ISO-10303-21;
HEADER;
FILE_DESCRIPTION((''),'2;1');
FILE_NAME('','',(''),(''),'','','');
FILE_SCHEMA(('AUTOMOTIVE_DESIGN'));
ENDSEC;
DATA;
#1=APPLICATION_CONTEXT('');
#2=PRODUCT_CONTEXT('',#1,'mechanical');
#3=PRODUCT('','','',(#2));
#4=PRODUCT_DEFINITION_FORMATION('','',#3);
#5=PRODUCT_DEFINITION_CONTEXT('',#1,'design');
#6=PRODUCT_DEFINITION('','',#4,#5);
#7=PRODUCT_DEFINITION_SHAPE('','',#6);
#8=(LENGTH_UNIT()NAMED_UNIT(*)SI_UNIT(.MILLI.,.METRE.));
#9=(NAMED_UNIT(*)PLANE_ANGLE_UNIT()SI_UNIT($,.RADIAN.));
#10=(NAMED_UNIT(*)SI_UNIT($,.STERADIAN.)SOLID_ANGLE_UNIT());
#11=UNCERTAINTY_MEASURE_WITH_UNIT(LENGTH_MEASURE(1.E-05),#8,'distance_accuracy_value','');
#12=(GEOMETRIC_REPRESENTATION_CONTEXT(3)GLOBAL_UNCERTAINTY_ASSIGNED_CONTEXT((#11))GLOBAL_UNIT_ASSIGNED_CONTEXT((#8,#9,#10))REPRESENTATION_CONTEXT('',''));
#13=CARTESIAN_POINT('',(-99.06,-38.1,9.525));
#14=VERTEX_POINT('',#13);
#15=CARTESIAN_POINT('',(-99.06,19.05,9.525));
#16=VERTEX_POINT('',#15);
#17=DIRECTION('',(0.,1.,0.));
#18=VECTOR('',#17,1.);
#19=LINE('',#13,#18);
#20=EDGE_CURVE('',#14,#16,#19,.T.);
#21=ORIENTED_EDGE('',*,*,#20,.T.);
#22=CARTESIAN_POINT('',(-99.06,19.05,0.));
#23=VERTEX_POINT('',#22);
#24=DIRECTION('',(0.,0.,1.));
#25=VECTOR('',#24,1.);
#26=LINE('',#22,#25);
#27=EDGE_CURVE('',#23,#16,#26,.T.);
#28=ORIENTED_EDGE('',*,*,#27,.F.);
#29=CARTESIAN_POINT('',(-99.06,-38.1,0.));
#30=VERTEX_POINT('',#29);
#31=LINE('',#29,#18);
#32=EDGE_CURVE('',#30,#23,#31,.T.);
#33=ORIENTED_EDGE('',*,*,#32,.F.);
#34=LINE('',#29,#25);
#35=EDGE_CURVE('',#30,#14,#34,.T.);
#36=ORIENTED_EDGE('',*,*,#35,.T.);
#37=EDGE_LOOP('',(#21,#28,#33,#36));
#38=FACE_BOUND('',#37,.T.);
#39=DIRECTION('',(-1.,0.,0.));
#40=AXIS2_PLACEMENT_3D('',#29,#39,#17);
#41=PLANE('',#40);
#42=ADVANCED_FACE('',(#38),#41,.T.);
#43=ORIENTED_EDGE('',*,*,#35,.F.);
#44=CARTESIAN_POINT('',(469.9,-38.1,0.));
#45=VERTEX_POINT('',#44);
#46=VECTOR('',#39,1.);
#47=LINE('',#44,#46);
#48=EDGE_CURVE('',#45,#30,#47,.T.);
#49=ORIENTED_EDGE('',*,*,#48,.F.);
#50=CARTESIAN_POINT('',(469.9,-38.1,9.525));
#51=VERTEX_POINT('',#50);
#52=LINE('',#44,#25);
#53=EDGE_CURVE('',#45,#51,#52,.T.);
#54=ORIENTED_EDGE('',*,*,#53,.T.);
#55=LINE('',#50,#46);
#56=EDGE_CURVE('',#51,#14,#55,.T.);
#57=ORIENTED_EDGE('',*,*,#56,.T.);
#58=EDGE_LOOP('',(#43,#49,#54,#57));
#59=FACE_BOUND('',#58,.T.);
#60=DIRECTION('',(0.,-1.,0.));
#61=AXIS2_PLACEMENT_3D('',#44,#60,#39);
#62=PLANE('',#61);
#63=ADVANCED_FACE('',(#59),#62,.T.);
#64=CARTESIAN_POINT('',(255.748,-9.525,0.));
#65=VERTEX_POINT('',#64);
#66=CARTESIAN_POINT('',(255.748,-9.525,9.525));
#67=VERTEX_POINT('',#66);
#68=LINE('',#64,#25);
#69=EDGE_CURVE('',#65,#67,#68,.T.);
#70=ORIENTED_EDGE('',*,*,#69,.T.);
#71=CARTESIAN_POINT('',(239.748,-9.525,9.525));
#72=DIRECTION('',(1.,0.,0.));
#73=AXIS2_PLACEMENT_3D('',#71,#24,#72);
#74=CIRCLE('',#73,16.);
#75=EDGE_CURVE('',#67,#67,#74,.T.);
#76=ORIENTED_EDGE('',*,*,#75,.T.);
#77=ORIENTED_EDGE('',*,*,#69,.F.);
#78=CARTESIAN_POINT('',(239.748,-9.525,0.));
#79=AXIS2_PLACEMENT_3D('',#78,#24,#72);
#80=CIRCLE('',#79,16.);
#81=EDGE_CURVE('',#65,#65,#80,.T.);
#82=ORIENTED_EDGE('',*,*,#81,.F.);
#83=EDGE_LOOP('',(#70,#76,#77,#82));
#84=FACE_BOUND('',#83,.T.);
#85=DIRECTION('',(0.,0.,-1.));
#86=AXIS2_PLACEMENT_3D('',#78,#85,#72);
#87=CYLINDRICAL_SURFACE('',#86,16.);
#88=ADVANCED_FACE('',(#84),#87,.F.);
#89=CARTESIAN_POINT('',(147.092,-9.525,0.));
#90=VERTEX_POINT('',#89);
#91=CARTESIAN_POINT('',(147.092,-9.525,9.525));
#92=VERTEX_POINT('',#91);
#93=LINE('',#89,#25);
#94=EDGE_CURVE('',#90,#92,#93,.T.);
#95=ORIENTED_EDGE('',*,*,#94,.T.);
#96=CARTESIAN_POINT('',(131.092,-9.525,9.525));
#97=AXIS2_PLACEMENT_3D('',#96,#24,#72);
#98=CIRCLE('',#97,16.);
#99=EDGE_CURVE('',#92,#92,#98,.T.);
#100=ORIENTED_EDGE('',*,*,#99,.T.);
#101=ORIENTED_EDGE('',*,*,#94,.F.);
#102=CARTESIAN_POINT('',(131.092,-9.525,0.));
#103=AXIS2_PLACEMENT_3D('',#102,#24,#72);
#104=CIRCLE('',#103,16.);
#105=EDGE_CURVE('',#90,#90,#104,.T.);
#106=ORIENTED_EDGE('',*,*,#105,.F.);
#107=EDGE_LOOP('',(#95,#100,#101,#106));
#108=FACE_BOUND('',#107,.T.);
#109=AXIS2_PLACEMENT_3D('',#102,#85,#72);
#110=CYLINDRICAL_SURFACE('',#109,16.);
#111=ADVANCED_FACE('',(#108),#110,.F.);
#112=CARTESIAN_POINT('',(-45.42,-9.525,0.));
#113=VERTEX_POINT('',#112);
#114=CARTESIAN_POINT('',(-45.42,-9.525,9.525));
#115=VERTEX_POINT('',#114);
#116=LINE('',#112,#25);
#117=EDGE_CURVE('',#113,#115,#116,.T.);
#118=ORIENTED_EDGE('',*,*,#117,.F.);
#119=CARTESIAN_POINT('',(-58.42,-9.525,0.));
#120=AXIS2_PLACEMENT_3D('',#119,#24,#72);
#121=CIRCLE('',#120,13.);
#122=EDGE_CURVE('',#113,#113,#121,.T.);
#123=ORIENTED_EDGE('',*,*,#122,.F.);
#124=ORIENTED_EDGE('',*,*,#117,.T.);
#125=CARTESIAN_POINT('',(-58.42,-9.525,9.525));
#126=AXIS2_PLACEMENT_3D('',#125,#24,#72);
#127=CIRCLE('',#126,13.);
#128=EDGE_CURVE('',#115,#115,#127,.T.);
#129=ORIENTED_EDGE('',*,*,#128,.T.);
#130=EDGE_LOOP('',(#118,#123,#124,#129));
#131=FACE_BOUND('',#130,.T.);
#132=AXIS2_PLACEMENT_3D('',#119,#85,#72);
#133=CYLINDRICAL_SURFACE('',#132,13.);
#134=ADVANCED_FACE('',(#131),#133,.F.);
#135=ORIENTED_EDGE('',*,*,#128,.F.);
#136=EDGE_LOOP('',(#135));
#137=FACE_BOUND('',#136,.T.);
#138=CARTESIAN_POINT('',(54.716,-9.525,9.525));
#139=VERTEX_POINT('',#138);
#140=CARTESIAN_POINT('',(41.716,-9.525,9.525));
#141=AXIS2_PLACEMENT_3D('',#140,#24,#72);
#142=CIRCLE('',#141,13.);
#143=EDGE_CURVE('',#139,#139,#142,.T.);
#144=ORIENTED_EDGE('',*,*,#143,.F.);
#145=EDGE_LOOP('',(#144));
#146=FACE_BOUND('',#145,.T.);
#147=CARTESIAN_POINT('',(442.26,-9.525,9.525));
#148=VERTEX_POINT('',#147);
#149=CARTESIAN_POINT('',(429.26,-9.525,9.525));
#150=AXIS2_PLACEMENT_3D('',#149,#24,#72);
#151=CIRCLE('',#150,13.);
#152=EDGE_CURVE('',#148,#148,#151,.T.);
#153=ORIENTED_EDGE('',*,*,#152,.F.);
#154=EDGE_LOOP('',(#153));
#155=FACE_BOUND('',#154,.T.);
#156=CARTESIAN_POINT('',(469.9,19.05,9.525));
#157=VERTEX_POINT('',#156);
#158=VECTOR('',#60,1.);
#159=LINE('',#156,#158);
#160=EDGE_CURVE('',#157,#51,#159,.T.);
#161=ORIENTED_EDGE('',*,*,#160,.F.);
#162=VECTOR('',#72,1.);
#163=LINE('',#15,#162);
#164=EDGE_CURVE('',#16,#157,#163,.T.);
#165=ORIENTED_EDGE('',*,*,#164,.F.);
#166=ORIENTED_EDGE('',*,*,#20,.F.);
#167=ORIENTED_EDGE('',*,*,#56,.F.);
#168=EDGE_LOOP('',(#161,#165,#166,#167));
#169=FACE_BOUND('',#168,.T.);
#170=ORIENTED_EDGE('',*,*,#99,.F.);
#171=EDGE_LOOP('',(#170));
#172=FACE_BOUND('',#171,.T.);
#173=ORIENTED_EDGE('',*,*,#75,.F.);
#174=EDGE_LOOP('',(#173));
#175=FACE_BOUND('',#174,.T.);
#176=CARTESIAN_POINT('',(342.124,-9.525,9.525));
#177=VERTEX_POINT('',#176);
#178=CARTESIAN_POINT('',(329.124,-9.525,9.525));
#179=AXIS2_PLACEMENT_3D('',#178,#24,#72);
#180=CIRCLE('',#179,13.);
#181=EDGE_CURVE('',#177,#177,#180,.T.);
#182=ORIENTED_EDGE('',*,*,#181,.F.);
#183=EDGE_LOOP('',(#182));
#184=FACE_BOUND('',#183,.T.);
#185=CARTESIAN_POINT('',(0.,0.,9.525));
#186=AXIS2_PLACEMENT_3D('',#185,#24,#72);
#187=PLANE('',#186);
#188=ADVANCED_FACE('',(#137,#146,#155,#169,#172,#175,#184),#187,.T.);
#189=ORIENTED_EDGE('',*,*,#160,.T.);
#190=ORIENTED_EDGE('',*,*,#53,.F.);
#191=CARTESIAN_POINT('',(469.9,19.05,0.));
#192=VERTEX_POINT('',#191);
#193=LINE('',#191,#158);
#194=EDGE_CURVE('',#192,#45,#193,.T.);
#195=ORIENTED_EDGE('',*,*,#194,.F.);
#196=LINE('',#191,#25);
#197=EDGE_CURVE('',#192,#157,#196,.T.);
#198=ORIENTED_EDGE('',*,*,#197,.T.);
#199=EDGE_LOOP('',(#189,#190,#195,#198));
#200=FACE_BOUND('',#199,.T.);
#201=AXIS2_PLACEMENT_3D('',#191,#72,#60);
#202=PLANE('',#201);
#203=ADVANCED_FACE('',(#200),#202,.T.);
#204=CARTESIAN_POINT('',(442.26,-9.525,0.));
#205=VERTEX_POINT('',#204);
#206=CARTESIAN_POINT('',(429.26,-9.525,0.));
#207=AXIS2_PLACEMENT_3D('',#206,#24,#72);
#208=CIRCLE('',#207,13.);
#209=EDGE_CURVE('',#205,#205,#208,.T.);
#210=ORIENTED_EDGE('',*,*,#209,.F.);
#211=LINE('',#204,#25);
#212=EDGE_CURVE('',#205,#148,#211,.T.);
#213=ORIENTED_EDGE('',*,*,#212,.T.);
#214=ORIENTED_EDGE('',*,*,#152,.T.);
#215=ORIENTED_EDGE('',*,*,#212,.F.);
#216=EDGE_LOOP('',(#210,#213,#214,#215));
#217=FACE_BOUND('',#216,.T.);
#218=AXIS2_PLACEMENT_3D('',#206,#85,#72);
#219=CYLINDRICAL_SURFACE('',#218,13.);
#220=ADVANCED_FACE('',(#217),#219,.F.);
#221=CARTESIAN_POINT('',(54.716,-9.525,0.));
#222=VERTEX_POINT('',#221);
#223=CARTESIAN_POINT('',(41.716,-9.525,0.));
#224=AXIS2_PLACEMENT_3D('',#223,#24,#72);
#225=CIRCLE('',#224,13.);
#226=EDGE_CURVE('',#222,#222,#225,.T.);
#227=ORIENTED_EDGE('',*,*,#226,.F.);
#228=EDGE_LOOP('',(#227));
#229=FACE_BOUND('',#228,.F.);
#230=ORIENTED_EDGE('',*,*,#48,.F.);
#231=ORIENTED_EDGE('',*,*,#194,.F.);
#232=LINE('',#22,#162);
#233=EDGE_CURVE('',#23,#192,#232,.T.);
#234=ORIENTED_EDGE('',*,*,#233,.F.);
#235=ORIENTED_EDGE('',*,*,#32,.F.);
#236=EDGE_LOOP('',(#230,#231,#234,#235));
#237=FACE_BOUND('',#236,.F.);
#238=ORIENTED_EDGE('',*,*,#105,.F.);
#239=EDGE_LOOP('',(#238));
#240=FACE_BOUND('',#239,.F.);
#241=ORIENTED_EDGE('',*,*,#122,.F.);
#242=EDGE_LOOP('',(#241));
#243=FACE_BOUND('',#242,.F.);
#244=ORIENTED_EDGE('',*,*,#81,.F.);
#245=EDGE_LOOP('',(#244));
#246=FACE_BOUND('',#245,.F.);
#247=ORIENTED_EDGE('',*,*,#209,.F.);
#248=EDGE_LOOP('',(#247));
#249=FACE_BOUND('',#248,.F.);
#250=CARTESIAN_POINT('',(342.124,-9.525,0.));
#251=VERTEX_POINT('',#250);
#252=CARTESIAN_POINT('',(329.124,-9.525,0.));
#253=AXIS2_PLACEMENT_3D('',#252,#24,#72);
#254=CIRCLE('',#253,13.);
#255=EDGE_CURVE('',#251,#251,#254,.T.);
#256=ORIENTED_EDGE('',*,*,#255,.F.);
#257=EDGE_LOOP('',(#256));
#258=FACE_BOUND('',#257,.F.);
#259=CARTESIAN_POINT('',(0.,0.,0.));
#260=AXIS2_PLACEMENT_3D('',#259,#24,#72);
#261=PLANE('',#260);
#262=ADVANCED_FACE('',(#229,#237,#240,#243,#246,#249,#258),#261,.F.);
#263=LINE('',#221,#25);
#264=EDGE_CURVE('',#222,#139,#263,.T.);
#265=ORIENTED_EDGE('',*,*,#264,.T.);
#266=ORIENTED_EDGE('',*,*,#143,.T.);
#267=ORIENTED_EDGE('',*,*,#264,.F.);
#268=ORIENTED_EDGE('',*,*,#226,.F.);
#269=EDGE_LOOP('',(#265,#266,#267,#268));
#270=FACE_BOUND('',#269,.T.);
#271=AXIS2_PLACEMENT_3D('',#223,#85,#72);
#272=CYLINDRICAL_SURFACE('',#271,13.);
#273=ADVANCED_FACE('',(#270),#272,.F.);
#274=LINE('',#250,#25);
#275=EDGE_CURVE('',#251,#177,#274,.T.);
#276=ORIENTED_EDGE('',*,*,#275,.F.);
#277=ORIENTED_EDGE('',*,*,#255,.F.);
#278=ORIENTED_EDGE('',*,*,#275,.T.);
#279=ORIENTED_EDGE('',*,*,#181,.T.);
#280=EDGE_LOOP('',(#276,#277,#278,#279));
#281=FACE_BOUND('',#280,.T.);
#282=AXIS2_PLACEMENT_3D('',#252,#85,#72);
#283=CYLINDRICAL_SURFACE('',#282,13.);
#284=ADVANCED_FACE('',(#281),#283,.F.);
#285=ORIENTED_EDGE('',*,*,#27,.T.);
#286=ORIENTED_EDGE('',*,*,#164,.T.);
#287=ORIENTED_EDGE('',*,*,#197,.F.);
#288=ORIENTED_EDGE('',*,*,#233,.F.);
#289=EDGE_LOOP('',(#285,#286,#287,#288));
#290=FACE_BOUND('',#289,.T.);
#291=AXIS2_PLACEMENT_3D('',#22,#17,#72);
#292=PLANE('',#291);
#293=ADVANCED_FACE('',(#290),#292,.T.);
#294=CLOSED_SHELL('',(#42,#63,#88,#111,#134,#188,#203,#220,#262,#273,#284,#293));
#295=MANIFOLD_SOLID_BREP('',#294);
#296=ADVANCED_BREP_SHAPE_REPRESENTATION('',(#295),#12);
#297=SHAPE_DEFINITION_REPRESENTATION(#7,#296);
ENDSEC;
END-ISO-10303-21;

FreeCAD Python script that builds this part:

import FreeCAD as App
import Part
import Sketcher
Q = App.Units.Quantity


def add_polygon(sketch, points):
    """Adds a closed chain of lines whose ends are joined by coincident constraints."""
    first, n = sketch.GeometryCount, len(points)
    for a, b in zip(points, points[1:] + points[:1]):
        sketch.addGeometry(Part.LineSegment(App.Vector(*a, 0), App.Vector(*b, 0)), False)
    for i in range(n):
        sketch.addConstraint(Sketcher.Constraint("Coincident", first + i, 2, first + (i + 1) % n, 1))

doc = App.newDocument("Part")
body = doc.addObject("PartDesign::Body", "Body")

# Sketch on XY plane
sketch1 = body.newObject("Sketcher::SketchObject", "Sketch")
sketch1.AttachmentSupport = (doc.getObject("XY_Plane"), [""])
sketch1.MapMode = "FlatFace"
add_polygon(sketch1, [(470, 19), (-99, 19), (-99, -38), (470, -38)])  # lines 0-3
sketch1.addGeometry(Part.Circle(App.Vector(-58, -10, 0), App.Vector(0, 0, 1), 13), False)  # 4
sketch1.addGeometry(Part.Circle(App.Vector(42, -10, 0), App.Vector(0, 0, 1), 13), False)  # 5
sketch1.addGeometry(Part.Circle(App.Vector(131, -10, 0), App.Vector(0, 0, 1), 16), False)  # 6
sketch1.addGeometry(Part.Circle(App.Vector(240, -10, 0), App.Vector(0, 0, 1), 16), False)  # 7
sketch1.addGeometry(Part.Circle(App.Vector(329, -10, 0), App.Vector(0, 0, 1), 13), False)  # 8
sketch1.addGeometry(Part.Circle(App.Vector(429, -10, 0), App.Vector(0, 0, 1), 13), False)  # 9
sketch1.addConstraint([
    Sketcher.Constraint("Horizontal", 0),
    Sketcher.Constraint("Vertical", 1),
    Sketcher.Constraint("Horizontal", 2),
    Sketcher.Constraint("Vertical", 3),
    Sketcher.Constraint("Equal", 4, 5),
    Sketcher.Constraint("Equal", 6, 7),
    Sketcher.Constraint("Equal", 5, 8),
    Sketcher.Constraint("Equal", 8, 9),
    Sketcher.Constraint("Horizontal", 4, 3, 5, 3),
    Sketcher.Constraint("Horizontal", 5, 3, 6, 3),
    Sketcher.Constraint("Horizontal", 6, 3, 7, 3),
    Sketcher.Constraint("Horizontal", 7, 3, 8, 3),
    Sketcher.Constraint("Horizontal", 8, 3, 9, 3),
    Sketcher.Constraint("DistanceX", 0, 2, 0, 1, Q("22.4 in")),
    Sketcher.Constraint("DistanceY", 1, 2, 1, 1, Q("2.25 in")),
    Sketcher.Constraint("DistanceX", 0, 2, 4, 3, Q("1.6 in")),
    Sketcher.Constraint("DistanceX", 9, 3, 2, 2, Q("1.6 in")),
    Sketcher.Constraint("Diameter", 4, Q("26 mm")),
    Sketcher.Constraint("Diameter", 6, Q("32 mm")),
    Sketcher.Constraint("DistanceX", 4, 3, -1, 1, Q("2.3 in")),
    Sketcher.Constraint("DistanceY", 1, 2, -1, 1, Q("1.5 in")),
    Sketcher.Constraint("DistanceX", 0, 2, 6, 3, Q("9.0611 in")),
    Sketcher.Constraint("DistanceX", 7, 3, 2, 2, Q("9.0611 in")),
    Sketcher.Constraint("DistanceX", 0, 2, 5, 3, Q("140.776 mm")),
    Sketcher.Constraint("DistanceX", 8, 3, 2, 2, Q("140.776 mm")),
    Sketcher.Constraint("DistanceY", 4, 3, -1, 1, Q("0.375 in")),
])
pad1 = body.newObject("PartDesign::Pad", "Pad")
pad1.Profile = sketch1
pad1.Length = Q("0.375 in")

doc.recompute()
